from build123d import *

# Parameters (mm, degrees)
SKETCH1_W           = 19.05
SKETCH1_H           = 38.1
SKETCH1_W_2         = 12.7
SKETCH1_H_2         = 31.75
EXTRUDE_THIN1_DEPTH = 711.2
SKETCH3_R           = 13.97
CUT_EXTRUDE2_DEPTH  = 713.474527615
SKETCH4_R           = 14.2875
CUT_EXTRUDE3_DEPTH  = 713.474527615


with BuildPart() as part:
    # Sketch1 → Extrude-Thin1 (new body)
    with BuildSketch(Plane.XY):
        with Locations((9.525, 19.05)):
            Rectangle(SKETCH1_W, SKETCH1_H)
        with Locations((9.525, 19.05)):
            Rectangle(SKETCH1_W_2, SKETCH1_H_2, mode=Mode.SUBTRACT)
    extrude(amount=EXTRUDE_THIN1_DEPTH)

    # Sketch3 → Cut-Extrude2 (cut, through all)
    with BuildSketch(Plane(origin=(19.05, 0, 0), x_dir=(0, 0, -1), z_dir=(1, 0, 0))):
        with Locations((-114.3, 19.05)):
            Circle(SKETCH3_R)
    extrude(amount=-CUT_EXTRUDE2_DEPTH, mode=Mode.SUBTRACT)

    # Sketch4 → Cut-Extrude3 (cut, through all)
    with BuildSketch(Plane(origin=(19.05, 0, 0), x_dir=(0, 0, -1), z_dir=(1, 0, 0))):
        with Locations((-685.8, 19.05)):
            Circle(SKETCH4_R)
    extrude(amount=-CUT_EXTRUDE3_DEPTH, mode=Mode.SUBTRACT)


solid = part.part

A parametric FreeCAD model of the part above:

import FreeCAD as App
import Part
import Sketcher

V = App.Vector
Q = App.Units.Quantity


def add_polygon(sketch, points):
    """Adds a closed chain of lines whose ends are joined by coincident constraints."""
    first, n = sketch.GeometryCount, len(points)
    for a, b in zip(points, points[1:] + points[:1]):
        sketch.addGeometry(Part.LineSegment(App.Vector(*a, 0), App.Vector(*b, 0)), False)
    for i in range(n):
        sketch.addConstraint(Sketcher.Constraint("Coincident", first + i, 2, first + (i + 1) % n, 1))

doc = App.newDocument("Part")
body = doc.addObject("PartDesign::Body", "Body")

sketch1 = body.newObject("Sketcher::SketchObject", "Sketch")
sketch1.AttachmentSupport = (doc.getObject("XY_Plane"), [""])
sketch1.MapMode = "FlatFace"
add_polygon(sketch1, [(0, 38), (0, 0), (19, 0), (19, 38)])
add_polygon(sketch1, [(16, 3), (3, 3), (3, 35), (16, 35)])
sketch1.addConstraint([
    Sketcher.Constraint("Vertical", 0),
    Sketcher.Constraint("Horizontal", 1),
    Sketcher.Constraint("Vertical", 2),
    Sketcher.Constraint("Horizontal", 3),
    Sketcher.Constraint("Horizontal", 4),
    Sketcher.Constraint("Vertical", 5),
    Sketcher.Constraint("Horizontal", 6),
    Sketcher.Constraint("Vertical", 7),
    Sketcher.Constraint("Coincident", 0, 2, -1, 1),
    Sketcher.Constraint("DistanceX", 4, 2, 4, 1, Q("0.5 in")),
    Sketcher.Constraint("DistanceY", 0, 2, 0, 1, Q("1.5 in")),
    Sketcher.Constraint("DistanceX", 1, 1, 1, 2, Q("0.75 in")),
    Sketcher.Constraint("DistanceY", 5, 1, 5, 2, Q("1.25 in")),
    Sketcher.Constraint("DistanceX", -1, 1, 4, 2, Q("0.125 in")),
    Sketcher.Constraint("DistanceY", -1, 1, 4, 2, Q("0.125 in")),
])
pad1 = body.newObject("PartDesign::Pad", "Pad")
pad1.Profile = sketch1
pad1.Length = Q("28 in")

sketch2 = body.newObject("Sketcher::SketchObject", "Sketch001")
sketch2.AttachmentSupport = (doc.getObject("YZ_Plane"), [""])
sketch2.MapMode = "FlatFace"
sketch2.AttachmentOffset = App.Placement(V(0, 0, 0.75 * 25.4), App.Rotation())
sketch2.addGeometry(Part.Circle(V(19, 114, 0), V(0, 0, 1), 14), False)
sketch2.addConstraint([
    Sketcher.Constraint("Diameter", 0, Q("1.1 in")),
    Sketcher.Constraint("DistanceY", -1, 1, 0, 3, Q("4.5 in")),
    Sketcher.Constraint("DistanceX", -1, 1, 0, 3, Q("0.75 in")),
])
pocket1 = body.newObject("PartDesign::Pocket", "Pocket")
pocket1.Profile = sketch2
pocket1.Type = "ThroughAll"

sketch3 = body.newObject("Sketcher::SketchObject", "Sketch002")
sketch3.AttachmentSupport = (doc.getObject("YZ_Plane"), [""])
sketch3.MapMode = "FlatFace"
sketch3.AttachmentOffset = App.Placement(V(0, 0, 0.75 * 25.4), App.Rotation())
sketch3.addGeometry(Part.Circle(V(19, 686, 0), V(0, 0, 1), 14), False)
sketch3.addConstraint([
    Sketcher.Constraint("Diameter", 0, Q("1.125 in")),
    Sketcher.Constraint("DistanceY", -1, 1, 0, 3, Q("27 in")),
    Sketcher.Constraint("DistanceX", -1, 1, 0, 3, Q("0.75 in")),
])
pocket2 = body.newObject("PartDesign::Pocket", "Pocket001")
pocket2.Profile = sketch3
pocket2.Type = "ThroughAll"

doc.recompute()
